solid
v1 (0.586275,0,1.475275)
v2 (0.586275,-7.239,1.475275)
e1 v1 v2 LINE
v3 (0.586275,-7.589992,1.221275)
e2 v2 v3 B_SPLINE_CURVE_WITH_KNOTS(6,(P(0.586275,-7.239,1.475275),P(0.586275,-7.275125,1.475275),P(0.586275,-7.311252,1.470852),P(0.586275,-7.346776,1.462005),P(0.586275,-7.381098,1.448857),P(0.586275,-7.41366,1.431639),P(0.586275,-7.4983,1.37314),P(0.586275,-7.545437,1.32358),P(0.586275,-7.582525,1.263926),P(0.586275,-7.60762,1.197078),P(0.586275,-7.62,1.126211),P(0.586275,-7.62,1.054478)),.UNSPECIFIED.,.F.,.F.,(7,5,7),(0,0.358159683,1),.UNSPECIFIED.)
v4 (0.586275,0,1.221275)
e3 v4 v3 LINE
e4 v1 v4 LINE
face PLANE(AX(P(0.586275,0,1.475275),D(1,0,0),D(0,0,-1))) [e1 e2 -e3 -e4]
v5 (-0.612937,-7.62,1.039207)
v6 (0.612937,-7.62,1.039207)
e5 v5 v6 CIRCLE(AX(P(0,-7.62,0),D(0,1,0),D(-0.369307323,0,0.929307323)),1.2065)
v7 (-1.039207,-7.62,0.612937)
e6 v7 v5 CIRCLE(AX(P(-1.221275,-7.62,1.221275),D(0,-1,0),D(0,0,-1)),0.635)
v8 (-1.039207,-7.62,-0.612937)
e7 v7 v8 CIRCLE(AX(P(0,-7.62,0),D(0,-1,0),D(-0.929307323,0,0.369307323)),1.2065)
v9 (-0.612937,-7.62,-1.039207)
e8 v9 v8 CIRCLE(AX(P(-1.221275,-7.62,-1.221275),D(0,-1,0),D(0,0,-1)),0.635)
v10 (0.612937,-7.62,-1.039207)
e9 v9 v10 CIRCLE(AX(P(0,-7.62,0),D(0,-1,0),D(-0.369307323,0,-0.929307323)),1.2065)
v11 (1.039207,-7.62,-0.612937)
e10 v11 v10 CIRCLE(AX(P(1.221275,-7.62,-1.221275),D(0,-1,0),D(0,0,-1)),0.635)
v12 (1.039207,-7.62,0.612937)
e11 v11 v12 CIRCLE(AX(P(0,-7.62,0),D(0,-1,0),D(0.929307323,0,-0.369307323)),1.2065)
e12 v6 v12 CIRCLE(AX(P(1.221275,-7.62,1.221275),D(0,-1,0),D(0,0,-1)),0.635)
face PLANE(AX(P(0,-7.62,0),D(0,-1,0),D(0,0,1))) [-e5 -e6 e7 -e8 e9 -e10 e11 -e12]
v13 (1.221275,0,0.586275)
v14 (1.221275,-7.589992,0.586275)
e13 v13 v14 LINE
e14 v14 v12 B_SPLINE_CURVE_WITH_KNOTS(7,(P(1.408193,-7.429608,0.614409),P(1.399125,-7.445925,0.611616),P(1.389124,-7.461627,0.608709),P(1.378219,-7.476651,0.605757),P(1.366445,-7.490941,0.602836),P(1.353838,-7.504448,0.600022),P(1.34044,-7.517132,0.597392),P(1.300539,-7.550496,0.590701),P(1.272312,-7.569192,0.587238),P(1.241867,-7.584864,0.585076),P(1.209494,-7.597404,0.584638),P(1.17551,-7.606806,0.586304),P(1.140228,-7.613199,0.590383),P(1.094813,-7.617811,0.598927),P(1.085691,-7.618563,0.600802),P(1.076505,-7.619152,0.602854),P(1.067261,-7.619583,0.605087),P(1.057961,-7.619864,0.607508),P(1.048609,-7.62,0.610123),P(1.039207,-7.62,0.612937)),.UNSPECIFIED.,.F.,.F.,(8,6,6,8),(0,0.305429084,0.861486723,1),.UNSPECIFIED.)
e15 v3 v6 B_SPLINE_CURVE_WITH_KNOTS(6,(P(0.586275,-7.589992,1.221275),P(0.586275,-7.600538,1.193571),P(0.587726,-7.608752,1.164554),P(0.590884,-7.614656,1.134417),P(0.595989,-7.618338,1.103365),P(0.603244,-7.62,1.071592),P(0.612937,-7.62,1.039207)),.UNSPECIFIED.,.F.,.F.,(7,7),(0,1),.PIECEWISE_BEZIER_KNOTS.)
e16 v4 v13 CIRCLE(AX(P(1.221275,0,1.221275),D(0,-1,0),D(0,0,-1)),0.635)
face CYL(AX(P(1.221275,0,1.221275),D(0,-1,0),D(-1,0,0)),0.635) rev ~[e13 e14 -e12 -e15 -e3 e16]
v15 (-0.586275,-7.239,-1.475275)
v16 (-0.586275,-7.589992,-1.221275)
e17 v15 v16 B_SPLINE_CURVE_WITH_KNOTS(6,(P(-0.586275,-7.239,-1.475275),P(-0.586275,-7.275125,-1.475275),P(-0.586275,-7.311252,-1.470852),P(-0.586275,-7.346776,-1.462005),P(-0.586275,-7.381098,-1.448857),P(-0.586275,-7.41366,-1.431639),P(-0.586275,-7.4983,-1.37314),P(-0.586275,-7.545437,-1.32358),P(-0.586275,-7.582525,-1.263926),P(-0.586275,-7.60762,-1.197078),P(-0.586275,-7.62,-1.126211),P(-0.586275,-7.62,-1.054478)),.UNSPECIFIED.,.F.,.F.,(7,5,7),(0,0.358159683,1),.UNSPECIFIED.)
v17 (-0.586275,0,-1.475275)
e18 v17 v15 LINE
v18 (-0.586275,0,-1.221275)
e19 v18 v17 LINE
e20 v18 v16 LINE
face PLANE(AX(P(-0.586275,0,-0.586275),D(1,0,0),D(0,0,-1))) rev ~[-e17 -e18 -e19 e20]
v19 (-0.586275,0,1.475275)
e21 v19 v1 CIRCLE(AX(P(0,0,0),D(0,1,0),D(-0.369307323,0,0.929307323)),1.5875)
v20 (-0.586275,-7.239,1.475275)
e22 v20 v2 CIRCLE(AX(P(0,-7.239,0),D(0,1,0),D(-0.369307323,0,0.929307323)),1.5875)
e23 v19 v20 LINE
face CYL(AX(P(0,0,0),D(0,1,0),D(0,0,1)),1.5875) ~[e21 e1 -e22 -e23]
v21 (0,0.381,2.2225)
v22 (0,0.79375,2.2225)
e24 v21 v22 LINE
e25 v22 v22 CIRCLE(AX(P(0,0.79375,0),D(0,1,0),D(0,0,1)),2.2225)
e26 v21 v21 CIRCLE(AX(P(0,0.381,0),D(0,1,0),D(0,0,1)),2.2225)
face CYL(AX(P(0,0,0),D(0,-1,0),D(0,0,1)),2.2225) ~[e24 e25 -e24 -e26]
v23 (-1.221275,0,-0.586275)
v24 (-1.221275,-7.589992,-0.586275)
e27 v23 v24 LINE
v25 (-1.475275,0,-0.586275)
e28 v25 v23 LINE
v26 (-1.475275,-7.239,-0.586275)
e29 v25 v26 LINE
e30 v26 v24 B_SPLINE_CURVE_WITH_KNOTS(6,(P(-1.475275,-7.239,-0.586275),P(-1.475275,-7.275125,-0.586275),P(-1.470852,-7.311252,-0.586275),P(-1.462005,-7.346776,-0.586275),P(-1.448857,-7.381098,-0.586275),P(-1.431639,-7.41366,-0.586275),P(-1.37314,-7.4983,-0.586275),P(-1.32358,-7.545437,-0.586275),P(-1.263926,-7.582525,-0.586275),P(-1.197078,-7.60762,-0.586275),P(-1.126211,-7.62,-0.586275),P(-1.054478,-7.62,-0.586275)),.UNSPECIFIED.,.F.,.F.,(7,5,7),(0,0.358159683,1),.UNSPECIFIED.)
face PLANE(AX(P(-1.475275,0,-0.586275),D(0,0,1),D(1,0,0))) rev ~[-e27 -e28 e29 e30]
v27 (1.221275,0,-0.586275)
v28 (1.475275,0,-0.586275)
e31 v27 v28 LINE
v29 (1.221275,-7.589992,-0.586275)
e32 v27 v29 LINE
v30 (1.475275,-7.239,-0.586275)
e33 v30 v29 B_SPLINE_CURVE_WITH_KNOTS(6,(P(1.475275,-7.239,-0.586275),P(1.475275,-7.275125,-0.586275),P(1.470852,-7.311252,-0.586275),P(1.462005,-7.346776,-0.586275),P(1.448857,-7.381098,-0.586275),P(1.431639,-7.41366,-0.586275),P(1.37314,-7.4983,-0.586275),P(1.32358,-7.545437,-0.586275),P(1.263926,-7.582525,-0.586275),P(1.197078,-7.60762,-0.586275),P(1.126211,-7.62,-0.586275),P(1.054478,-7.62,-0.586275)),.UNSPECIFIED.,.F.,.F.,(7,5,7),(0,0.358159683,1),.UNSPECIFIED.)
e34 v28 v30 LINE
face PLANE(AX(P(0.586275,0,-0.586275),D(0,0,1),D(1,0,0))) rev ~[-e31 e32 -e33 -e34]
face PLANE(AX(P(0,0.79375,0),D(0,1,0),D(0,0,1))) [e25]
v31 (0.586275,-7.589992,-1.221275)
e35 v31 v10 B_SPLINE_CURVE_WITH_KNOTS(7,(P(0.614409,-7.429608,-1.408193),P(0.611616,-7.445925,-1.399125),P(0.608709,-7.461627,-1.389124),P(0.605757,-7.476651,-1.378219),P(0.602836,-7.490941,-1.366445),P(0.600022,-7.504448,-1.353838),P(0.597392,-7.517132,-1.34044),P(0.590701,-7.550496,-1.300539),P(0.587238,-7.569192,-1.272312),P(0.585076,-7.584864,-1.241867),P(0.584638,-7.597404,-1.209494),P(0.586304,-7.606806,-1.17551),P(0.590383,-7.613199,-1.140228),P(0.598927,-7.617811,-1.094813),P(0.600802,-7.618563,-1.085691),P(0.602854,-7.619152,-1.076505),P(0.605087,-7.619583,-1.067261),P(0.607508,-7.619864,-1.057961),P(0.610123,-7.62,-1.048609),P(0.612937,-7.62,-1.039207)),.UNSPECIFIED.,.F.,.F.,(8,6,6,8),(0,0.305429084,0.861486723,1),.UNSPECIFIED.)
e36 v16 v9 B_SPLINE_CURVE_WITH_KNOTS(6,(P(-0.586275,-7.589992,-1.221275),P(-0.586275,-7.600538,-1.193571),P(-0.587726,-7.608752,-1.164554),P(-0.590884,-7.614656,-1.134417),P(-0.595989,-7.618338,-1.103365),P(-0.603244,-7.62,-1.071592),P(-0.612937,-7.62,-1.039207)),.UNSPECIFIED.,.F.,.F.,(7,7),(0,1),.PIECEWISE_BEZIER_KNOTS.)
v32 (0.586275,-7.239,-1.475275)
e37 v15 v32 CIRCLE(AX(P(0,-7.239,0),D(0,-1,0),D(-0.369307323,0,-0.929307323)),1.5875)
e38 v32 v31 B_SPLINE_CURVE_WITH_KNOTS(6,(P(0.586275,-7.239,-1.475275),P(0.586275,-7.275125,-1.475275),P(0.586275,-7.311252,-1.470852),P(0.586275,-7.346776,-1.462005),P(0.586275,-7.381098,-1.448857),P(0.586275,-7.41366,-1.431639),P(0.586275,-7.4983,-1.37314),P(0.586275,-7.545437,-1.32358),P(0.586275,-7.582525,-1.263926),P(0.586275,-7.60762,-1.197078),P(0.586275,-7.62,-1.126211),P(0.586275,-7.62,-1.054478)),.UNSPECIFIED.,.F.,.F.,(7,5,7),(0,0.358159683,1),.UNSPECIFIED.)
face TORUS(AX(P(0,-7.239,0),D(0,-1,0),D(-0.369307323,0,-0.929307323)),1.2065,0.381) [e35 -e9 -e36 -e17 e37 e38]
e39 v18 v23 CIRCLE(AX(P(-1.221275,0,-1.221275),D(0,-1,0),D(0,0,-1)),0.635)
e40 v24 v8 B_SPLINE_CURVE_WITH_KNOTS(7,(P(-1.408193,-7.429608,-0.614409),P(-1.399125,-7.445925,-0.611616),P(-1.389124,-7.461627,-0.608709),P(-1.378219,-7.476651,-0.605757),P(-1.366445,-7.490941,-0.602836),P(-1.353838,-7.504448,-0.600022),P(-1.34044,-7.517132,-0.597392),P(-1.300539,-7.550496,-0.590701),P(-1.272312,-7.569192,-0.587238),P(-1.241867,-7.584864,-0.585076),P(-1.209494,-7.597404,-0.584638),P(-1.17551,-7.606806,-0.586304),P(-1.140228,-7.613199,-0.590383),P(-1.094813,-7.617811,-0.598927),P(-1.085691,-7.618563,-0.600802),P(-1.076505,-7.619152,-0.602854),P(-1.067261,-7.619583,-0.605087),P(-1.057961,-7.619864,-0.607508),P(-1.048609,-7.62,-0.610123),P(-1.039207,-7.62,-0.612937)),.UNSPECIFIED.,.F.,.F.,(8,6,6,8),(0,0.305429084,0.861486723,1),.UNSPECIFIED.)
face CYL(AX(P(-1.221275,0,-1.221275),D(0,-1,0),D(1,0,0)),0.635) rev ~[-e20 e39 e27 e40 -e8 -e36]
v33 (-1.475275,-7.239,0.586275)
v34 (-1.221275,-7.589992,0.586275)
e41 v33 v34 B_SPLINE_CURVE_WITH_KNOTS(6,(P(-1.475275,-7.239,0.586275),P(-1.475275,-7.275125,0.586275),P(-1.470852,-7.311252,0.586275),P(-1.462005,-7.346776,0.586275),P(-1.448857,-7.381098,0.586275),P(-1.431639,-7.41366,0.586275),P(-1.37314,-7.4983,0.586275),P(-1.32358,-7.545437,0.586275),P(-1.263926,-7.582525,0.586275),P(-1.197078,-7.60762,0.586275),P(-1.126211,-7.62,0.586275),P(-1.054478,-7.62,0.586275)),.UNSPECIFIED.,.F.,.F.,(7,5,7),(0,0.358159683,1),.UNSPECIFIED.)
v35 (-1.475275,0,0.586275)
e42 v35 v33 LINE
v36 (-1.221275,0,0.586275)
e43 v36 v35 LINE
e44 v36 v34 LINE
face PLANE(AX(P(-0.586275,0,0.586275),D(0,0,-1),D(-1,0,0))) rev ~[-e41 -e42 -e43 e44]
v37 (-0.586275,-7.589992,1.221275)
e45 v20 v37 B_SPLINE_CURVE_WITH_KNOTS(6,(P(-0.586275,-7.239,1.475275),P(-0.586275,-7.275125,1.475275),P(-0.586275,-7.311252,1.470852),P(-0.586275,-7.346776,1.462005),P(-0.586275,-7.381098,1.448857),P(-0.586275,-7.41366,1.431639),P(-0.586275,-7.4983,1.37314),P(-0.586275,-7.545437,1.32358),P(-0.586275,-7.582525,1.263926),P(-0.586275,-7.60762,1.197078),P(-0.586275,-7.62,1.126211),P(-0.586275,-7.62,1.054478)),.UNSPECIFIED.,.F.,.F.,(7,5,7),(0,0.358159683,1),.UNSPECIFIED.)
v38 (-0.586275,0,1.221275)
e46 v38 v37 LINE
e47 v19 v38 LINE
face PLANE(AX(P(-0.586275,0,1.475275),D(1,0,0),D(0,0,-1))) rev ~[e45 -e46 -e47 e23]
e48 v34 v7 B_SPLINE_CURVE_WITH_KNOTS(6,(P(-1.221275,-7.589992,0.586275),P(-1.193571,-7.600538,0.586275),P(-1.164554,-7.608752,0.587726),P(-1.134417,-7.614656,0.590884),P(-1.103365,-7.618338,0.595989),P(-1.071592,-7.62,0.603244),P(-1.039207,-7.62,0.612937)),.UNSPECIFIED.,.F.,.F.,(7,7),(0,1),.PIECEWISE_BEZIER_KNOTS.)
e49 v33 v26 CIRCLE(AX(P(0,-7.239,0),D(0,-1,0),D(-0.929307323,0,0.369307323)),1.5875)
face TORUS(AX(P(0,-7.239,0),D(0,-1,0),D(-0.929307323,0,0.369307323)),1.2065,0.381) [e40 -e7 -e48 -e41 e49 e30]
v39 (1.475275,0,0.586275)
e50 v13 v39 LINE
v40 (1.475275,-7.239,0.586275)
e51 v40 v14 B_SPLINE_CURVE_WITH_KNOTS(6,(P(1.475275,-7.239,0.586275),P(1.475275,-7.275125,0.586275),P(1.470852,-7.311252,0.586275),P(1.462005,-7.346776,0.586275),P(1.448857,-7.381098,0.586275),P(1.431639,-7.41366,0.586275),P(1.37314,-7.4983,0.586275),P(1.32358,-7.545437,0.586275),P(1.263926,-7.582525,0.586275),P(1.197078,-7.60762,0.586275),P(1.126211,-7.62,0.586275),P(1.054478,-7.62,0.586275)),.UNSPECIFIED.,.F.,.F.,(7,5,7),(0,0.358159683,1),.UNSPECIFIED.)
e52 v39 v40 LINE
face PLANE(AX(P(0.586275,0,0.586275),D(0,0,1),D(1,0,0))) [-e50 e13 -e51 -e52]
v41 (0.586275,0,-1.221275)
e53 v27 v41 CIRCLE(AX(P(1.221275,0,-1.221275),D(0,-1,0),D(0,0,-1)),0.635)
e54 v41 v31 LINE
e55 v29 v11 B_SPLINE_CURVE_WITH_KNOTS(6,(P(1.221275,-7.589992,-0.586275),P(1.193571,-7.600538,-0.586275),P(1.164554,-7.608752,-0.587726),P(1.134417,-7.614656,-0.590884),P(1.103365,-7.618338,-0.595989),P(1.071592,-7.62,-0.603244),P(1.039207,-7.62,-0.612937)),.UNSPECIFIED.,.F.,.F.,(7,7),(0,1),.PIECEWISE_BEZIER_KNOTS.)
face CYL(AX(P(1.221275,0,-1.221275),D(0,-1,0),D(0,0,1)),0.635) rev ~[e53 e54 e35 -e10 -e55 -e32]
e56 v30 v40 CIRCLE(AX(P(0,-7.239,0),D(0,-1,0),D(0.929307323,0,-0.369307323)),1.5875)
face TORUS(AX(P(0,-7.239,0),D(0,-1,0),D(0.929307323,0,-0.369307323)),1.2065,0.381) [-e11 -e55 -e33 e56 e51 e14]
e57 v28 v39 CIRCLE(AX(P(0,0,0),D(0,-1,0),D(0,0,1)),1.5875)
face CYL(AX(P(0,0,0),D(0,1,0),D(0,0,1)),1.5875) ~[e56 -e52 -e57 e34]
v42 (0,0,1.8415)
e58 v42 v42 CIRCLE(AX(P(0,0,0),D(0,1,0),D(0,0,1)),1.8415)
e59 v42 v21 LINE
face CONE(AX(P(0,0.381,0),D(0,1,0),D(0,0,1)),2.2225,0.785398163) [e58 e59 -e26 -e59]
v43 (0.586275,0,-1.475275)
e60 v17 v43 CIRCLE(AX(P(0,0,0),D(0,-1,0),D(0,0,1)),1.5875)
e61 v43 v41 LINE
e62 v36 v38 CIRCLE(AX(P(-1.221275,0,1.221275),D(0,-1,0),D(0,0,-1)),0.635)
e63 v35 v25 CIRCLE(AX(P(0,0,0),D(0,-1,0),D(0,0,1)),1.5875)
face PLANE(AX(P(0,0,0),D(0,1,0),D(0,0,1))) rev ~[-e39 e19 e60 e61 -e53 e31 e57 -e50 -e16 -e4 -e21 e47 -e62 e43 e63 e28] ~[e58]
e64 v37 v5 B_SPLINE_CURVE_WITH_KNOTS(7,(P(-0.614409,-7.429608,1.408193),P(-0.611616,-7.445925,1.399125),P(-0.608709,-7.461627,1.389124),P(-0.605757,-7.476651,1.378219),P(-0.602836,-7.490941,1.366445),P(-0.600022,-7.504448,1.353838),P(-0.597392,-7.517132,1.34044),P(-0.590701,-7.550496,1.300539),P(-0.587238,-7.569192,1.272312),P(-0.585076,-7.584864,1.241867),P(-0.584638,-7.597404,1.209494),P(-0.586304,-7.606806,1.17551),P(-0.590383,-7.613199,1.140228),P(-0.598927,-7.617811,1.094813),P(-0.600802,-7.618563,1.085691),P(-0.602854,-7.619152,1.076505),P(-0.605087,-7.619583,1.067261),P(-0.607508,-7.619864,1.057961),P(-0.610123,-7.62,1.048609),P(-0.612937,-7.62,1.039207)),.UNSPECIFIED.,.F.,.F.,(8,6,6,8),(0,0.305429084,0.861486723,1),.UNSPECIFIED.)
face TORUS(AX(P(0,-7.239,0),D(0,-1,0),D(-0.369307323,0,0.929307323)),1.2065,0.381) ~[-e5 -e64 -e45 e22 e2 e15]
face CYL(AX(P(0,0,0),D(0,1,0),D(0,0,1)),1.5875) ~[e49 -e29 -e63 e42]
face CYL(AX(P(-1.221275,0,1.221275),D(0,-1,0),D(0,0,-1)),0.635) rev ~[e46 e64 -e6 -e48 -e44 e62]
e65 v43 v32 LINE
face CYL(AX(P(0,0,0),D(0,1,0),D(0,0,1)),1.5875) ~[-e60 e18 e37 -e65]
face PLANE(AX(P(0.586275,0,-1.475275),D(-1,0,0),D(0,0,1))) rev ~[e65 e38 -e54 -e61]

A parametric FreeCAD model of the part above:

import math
import FreeCAD as App
import Part
import Sketcher
from FreeCAD import Vector
Q = App.Units.Quantity


def edges_at(feature, points):
    """Names of the edges that pass closest to the given points."""
    edges = feature.Shape.Edges
    near = lambda p: min(range(len(edges)), key=lambda i: edges[i].distToShape(Part.Vertex(*p))[0])
    return sorted({f"Edge{near(p) + 1}" for p in points})

doc = App.newDocument("Part")
body = doc.addObject("PartDesign::Body", "Body")

sketch1 = body.newObject("Sketcher::SketchObject", "Sketch")
sketch1.AttachmentSupport = (doc.getObject("XZ_Plane"), [""])
sketch1.MapMode = "FlatFace"
sketch1.addGeometry(Part.Circle(Vector(0, 0, 0), Vector(0, 0, 1), 2.2225), False)
sketch1.addConstraint([
    Sketcher.Constraint("Coincident", 0, 3, -1, 1),
    Sketcher.Constraint("Diameter", 0, Q("0.175 in")),
])
pad1 = body.newObject("PartDesign::Pad", "Pad")
pad1.Profile = sketch1
pad1.Length = Q("0.03125 in")
pad1.Reversed = True

sketch2 = body.newObject("Sketcher::SketchObject", "Sketch001")
sketch2.AttachmentSupport = (doc.getObject("XZ_Plane"), [""])
sketch2.MapMode = "FlatFace"
sketch2.addGeometry(Part.Circle(Vector(0, 0, 0), Vector(0, 0, 1), 1.5875), False)
sketch2.addConstraint([
    Sketcher.Constraint("Coincident", 0, 3, -1, 1),
    Sketcher.Constraint("Diameter", 0, Q("0.125 in")),
])
pad2 = body.newObject("PartDesign::Pad", "Pad001")
pad2.Profile = sketch2
pad2.Length = Q("0.3 in")

sketch3 = body.newObject("Sketcher::SketchObject", "Sketch002")
sketch3.AttachmentSupport = (doc.getObject("XZ_Plane"), [""])
sketch3.MapMode = "FlatFace"
sketch3.addGeometry([
    Part.LineSegment(Vector(-0.586275, 0.586275, 0), Vector(-0.586275, 1.475275, 0)),
    Part.ArcOfCircle(Part.Circle(Vector(0, 0, 0), Vector(0, 0, 1), 1.5875), math.radians(111.672905), math.radians(158.327095)),
    Part.LineSegment(Vector(-1.475275, 0.586275, 0), Vector(-0.586275, 0.586275, 0)),
    Part.LineSegment(Vector(-0.586275, -0.586275, 0), Vector(-1.475275, -0.586275, 0)),
    Part.ArcOfCircle(Part.Circle(Vector(0, 0, 0), Vector(0, 0, 1), 1.5875), math.radians(-158.327095), math.radians(-111.672905)),
    Part.LineSegment(Vector(-0.586275, -1.475275, 0), Vector(-0.586275, -0.586275, 0)),
    Part.LineSegment(Vector(0.586275, 1.475275, 0), Vector(0.586275, 0.586275, 0)),
    Part.LineSegment(Vector(0.586275, 0.586275, 0), Vector(1.475275, 0.586275, 0)),
    Part.ArcOfCircle(Part.Circle(Vector(0, 0, 0), Vector(0, 0, 1), 1.5875), math.radians(21.672905), math.radians(68.327095)),
    Part.LineSegment(Vector(0.586275, -0.586275, 0), Vector(0.586275, -1.475275, 0)),
    Part.ArcOfCircle(Part.Circle(Vector(0, 0, 0), Vector(0, 0, 1), 1.5875), math.radians(-68.327095), math.radians(-21.672905)),
    Part.LineSegment(Vector(1.475275, -0.586275, 0), Vector(0.586275, -0.586275, 0)),
], False)
sketch3.addConstraint([
    Sketcher.Constraint("Coincident", 0, 2, 1, 1),
    Sketcher.Constraint("Coincident", 1, 2, 2, 1),
    Sketcher.Constraint("Coincident", 2, 2, 0, 1),
    Sketcher.Constraint("Coincident", 3, 2, 4, 1),
    Sketcher.Constraint("Coincident", 4, 2, 5, 1),
    Sketcher.Constraint("Coincident", 5, 2, 3, 1),
    Sketcher.Constraint("Coincident", 6, 2, 7, 1),
    Sketcher.Constraint("Coincident", 7, 2, 8, 1),
    Sketcher.Constraint("Coincident", 8, 2, 6, 1),
    Sketcher.Constraint("Coincident", 9, 2, 10, 1),
    Sketcher.Constraint("Coincident", 10, 2, 11, 1),
    Sketcher.Constraint("Coincident", 11, 2, 9, 1),
    Sketcher.Constraint("Vertical", 0),
    Sketcher.Constraint("Horizontal", 2),
    Sketcher.Constraint("Horizontal", 3),
    Sketcher.Constraint("Vertical", 5),
    Sketcher.Constraint("Vertical", 6),
    Sketcher.Constraint("Horizontal", 7),
    Sketcher.Constraint("Vertical", 9),
    Sketcher.Constraint("Horizontal", 11),
    Sketcher.Constraint("Coincident", 1, 3, -1, 1),
    Sketcher.Constraint("Coincident", 4, 3, -1, 1),
    Sketcher.Constraint("Coincident", 8, 3, -1, 1),
    Sketcher.Constraint("Coincident", 10, 3, -1, 1),
    Sketcher.Constraint("Equal", 1, 4),
    Sketcher.Constraint("Equal", 4, 8),
    Sketcher.Constraint("Equal", 8, 10),
    Sketcher.Constraint("Symmetric", 5, 2, 6, 2, -1, 1),
    Sketcher.Constraint("Symmetric", 2, 2, 11, 2, -1, 1),
    Sketcher.Constraint("Symmetric", 2, 2, 6, 2, -2),
    Sketcher.Constraint("Equal", 11, 0),
    Sketcher.Constraint("Radius", 1, Q("0.0625 in")),
    Sketcher.Constraint("DistanceX", 2, 1, 2, 2, Q("0.035 in")),
])
pocket1 = body.newObject("PartDesign::Pocket", "Pocket")
pocket1.Profile = sketch3
pocket1.Length = Q("0.3 in")
pocket1.Reversed = True
doc.recompute()

fillet = body.newObject("PartDesign::Fillet", "Fillet")
fillet.Base = (pocket1, edges_at(pocket1, [
    (-0.586, -3.81, -0.586),
    (0.586, -3.81, 0.586),
    (0.586, -3.81, -0.586),
    (-0.586, -3.81, 0.586),
]))
fillet.Radius = Q("0.025 in")
doc.recompute()

fillet2 = body.newObject("PartDesign::Fillet", "Fillet001")
fillet2.Base = (fillet, edges_at(fillet, [
    (-1.587, -7.62, 0),
    (0, -7.62, -1.587),
    (1.587, -7.62, 0),
    (0, -7.62, 1.587),
]))
fillet2.Radius = Q("0.015 in")
doc.recompute()

chamfer = body.newObject("PartDesign::Chamfer", "Chamfer")
chamfer.Base = (fillet2, edges_at(fillet2, [(0, 0, -2.223)]))
chamfer.Size = Q("0.015 in")

doc.recompute()
